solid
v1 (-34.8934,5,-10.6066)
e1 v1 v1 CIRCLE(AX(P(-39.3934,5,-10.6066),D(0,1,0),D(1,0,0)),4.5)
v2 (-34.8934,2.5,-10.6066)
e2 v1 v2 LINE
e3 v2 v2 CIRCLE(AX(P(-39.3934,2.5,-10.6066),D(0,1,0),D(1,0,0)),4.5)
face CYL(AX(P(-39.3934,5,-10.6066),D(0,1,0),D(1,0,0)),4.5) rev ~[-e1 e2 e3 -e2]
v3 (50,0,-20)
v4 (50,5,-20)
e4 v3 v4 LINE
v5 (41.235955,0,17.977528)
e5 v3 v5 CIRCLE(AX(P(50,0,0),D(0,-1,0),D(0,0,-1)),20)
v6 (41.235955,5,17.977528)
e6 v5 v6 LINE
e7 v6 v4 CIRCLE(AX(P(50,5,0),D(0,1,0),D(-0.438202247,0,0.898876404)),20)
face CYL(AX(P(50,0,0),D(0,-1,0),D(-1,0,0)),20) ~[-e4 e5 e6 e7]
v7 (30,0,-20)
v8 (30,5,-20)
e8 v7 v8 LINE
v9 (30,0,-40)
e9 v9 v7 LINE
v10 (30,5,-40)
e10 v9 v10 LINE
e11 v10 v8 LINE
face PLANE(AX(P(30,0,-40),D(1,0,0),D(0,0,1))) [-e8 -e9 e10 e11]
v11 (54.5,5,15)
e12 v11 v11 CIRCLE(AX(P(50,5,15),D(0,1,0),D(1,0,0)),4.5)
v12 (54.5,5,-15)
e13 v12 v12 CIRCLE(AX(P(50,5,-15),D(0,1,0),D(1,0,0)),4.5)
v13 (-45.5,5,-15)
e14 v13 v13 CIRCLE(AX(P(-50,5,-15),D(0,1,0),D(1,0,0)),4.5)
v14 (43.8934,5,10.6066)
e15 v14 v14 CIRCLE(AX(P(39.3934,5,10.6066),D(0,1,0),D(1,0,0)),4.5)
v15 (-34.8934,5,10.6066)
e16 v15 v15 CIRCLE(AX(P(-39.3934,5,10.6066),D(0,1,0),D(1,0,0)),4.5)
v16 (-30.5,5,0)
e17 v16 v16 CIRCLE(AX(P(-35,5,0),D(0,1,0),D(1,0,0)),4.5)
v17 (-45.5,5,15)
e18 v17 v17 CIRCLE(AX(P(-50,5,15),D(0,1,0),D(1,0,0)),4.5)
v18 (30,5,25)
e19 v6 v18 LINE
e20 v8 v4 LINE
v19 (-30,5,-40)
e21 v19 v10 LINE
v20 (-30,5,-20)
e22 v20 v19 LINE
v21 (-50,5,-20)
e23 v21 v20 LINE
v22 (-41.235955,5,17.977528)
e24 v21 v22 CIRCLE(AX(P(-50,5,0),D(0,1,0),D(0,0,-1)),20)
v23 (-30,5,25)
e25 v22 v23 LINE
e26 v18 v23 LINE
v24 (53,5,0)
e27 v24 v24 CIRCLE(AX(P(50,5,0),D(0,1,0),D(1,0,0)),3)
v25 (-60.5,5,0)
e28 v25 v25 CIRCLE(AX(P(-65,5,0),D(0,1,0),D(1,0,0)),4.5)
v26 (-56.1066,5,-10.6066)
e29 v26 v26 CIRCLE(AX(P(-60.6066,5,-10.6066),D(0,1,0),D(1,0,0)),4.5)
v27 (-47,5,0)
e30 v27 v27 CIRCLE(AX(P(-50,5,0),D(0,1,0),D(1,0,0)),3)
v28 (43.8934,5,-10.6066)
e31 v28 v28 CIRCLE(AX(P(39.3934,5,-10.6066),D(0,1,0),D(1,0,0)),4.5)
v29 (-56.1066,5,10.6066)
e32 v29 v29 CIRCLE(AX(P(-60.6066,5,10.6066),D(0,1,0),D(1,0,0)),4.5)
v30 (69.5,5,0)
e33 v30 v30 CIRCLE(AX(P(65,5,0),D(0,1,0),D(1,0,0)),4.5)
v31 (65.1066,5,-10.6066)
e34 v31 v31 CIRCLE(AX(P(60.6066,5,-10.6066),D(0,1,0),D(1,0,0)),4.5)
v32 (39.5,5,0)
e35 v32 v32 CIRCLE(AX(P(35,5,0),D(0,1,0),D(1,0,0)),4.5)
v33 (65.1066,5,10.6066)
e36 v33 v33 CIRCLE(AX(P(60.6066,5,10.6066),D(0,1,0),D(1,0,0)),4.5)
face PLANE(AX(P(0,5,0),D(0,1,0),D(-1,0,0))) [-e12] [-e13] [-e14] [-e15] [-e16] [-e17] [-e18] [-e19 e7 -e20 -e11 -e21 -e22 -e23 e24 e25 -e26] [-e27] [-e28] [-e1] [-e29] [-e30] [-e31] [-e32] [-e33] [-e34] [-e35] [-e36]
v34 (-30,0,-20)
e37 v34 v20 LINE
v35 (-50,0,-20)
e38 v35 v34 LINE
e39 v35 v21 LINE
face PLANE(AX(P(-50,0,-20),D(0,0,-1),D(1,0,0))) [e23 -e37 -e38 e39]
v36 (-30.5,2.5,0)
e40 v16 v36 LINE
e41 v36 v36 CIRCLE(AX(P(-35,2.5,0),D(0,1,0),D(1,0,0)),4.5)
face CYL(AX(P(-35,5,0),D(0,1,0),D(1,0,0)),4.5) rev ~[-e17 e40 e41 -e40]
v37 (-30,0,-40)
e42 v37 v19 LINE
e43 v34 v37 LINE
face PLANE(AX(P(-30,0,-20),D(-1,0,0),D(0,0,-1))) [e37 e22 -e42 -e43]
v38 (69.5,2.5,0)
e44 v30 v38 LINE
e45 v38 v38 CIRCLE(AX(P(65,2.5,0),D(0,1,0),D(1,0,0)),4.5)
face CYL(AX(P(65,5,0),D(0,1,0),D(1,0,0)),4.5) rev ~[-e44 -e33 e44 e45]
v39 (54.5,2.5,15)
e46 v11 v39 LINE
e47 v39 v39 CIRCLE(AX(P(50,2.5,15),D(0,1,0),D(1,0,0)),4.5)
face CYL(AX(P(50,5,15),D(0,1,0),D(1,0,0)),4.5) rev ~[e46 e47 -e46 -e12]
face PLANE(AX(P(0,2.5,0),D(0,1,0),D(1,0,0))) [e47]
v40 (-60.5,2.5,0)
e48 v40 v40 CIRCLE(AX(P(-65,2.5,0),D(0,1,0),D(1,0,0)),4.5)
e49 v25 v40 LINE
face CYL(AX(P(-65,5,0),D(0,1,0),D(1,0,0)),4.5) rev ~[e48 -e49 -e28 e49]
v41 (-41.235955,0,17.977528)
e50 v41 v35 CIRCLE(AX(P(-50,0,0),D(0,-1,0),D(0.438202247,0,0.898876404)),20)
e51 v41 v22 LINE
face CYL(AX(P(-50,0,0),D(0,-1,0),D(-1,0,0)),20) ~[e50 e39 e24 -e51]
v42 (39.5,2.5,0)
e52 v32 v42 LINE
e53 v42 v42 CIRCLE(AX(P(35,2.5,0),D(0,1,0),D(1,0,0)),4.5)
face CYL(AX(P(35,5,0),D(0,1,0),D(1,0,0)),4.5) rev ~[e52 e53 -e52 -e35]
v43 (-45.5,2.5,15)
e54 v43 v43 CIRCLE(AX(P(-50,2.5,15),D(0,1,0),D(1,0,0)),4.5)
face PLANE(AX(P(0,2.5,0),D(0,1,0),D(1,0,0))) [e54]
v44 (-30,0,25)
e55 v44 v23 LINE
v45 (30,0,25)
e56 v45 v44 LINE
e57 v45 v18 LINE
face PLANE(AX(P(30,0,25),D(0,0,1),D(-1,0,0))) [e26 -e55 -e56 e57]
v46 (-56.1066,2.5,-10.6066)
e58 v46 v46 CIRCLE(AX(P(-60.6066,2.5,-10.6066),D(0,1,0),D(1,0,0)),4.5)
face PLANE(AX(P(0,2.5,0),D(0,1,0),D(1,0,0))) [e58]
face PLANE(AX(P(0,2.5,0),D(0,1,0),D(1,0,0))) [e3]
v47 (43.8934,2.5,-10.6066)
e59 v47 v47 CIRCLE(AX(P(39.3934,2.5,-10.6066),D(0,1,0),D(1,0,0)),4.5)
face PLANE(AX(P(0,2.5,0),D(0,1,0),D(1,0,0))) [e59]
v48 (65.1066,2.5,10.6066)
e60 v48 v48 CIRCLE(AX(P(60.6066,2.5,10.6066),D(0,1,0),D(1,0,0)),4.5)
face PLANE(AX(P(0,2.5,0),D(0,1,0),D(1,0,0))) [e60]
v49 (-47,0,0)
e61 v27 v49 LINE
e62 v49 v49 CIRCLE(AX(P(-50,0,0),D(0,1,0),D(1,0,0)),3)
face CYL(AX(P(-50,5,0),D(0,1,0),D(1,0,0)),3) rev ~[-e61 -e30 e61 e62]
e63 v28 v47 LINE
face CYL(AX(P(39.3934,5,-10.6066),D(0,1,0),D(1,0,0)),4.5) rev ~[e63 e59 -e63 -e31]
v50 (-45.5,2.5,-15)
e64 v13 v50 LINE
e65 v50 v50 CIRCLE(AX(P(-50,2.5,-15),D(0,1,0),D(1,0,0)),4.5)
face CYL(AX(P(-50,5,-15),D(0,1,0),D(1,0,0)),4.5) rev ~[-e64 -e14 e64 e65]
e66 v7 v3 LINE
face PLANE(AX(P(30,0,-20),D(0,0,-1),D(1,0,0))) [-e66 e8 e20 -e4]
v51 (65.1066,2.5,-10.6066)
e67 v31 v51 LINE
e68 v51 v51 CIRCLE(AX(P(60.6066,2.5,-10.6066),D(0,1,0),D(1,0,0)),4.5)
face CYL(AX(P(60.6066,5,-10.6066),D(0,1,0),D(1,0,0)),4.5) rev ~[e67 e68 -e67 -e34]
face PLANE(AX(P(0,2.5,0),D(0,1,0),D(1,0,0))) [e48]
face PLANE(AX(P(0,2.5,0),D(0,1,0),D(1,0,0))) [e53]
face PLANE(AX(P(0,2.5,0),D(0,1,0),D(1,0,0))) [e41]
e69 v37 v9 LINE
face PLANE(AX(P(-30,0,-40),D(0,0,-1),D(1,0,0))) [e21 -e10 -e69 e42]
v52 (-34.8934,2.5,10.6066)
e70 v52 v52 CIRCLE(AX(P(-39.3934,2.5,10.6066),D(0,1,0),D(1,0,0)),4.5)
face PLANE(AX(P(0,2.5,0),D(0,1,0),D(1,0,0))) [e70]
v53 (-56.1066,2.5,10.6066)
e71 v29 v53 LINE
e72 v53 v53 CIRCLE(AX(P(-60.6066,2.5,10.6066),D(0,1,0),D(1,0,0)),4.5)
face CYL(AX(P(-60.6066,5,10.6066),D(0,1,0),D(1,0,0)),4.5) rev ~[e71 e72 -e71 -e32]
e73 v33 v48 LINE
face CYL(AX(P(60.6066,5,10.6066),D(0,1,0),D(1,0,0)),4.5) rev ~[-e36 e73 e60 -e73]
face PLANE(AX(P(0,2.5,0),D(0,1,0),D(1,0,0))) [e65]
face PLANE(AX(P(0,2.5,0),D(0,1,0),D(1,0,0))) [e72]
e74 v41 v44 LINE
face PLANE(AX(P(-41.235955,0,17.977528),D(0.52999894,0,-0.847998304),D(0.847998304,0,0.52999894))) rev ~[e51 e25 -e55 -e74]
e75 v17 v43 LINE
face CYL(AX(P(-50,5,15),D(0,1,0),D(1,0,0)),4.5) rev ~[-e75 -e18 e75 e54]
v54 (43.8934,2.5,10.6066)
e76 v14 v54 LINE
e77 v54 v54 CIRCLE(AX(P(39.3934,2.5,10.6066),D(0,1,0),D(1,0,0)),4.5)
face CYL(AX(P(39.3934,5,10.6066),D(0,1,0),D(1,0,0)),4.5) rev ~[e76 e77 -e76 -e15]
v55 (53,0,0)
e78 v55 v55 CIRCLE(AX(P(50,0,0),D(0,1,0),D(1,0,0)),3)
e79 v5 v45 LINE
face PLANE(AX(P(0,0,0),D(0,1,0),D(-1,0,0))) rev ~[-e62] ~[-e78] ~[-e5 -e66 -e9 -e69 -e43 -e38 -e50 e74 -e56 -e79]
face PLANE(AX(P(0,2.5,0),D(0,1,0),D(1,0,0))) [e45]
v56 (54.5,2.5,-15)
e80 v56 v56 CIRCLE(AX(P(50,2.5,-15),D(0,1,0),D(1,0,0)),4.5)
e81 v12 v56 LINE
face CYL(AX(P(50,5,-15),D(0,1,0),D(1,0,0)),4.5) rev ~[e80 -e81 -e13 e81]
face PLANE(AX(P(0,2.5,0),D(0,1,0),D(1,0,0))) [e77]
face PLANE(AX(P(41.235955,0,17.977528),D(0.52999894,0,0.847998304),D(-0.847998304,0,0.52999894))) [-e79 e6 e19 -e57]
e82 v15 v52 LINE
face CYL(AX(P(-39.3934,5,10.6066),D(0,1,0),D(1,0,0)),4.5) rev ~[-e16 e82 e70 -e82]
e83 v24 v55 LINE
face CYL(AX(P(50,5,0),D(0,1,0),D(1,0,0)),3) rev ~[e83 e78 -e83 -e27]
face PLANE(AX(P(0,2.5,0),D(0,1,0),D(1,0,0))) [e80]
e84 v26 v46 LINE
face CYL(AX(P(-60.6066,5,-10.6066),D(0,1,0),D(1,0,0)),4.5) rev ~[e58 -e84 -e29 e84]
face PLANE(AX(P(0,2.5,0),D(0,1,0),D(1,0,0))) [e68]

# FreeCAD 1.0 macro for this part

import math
import FreeCAD as App
import Part
import Sketcher

V = App.Vector

doc = App.newDocument("Part")
body = doc.addObject("PartDesign::Body", "Body")

# Sketch on XZ plane
sketch1 = body.newObject("Sketcher::SketchObject", "Sketch")
sketch1.AttachmentSupport = (doc.getObject("XZ_Plane"), [""])
sketch1.MapMode = "FlatFace"
sketch1.addGeometry([
    Part.LineSegment(V(-30, 25, 0), V(30, 25, 0)),  # 0
    Part.LineSegment(V(30, 25, 0), V(41, 18, 0)),  # 1
    Part.ArcOfCircle(Part.Circle(V(50, 0, 0), V(0, 0, 1), 20), math.radians(-90), math.radians(116)),  # 2
    Part.LineSegment(V(50, -20, 0), V(30, -20, 0)),  # 3
    Part.LineSegment(V(30, -20, 0), V(30, -40, 0)),  # 4
    Part.LineSegment(V(30, -40, 0), V(-30, -40, 0)),  # 5
    Part.LineSegment(V(-30, -40, 0), V(-30, -20, 0)),  # 6
    Part.LineSegment(V(-30, -20, 0), V(-50, -20, 0)),  # 7
    Part.ArcOfCircle(Part.Circle(V(-50, 0, 0), V(0, 0, 1), 20), math.radians(64), math.radians(270)),  # 8
    Part.LineSegment(V(-41, 18, 0), V(-30, 25, 0)),  # 9
], False)
sketch1.addConstraint([
    Sketcher.Constraint("Coincident", 0, 2, 1, 1),
    Sketcher.Constraint("Coincident", 1, 2, 2, 2),
    Sketcher.Constraint("Tangent", 2, 1, 3, 1),
    Sketcher.Constraint("Coincident", 3, 2, 4, 1),
    Sketcher.Constraint("Coincident", 4, 2, 5, 1),
    Sketcher.Constraint("Coincident", 5, 2, 6, 1),
    Sketcher.Constraint("Coincident", 6, 2, 7, 1),
    Sketcher.Constraint("Tangent", 7, 2, 8, 2),
    Sketcher.Constraint("Coincident", 8, 1, 9, 1),
    Sketcher.Constraint("Coincident", 9, 2, 0, 1),
    Sketcher.Constraint("Horizontal", 0),
    Sketcher.Constraint("Horizontal", 3),
    Sketcher.Constraint("Vertical", 4),
    Sketcher.Constraint("Horizontal", 5),
    Sketcher.Constraint("Vertical", 6),
    Sketcher.Constraint("Horizontal", 7),
    Sketcher.Constraint("Equal", 2, 8),
    Sketcher.Constraint("Symmetric", 2, 3, 8, 3, -1, 1),
    Sketcher.Constraint("Symmetric", 3, 2, 6, 2, -2),
    Sketcher.Constraint("Horizontal", 1, 2, 8, 1),
    Sketcher.Constraint("Vertical", 0, 2, 3, 2),
    Sketcher.Constraint("Vertical", 6, 2, 9, 2),
    Sketcher.Constraint("Equal", 7, 4),
    Sketcher.Constraint("Radius", 2, 20.0),
    Sketcher.Constraint("DistanceX", 0, 1, 0, 2, 60.0),
    Sketcher.Constraint("DistanceX", -1, 1, 2, 3, 50.0),
    Sketcher.Constraint("DistanceY", -1, 1, 0, 2, 25.0),
    Sketcher.Constraint("Distance", 1, 13.25),
])
pad1 = body.newObject("PartDesign::Pad", "Pad")
pad1.Profile = sketch1
pad1.Length = 5
pad1.Reversed = True

# Sketch on XZ plane
sketch2 = body.newObject("Sketcher::SketchObject", "Sketch001")
sketch2.AttachmentSupport = (doc.getObject("XZ_Plane"), [""])
sketch2.MapMode = "FlatFace"
sketch2.AttachmentOffset = App.Placement(V(0, 0, -5), App.Rotation())
sketch2.addGeometry([
    Part.Circle(V(-50, 0, 0), V(0, 0, 1), 3),
    Part.Circle(V(50, 0, 0), V(0, 0, 1), 3),
], False)
sketch2.addConstraint([
    Sketcher.Constraint("Equal", 0, 1),
    Sketcher.Constraint("Symmetric", 0, 3, 1, 3, -1, 1),
    Sketcher.Constraint("PointOnObject", 0, 3, -1),
    Sketcher.Constraint("Diameter", 0, 6.0),
    Sketcher.Constraint("DistanceX", 0, 3, -1, 1, 50.0),
])
pocket1 = body.newObject("PartDesign::Pocket", "Pocket")
pocket1.Profile = sketch2
pocket1.Type = "ThroughAll"
pocket1.Reversed = True

# Sketch on XZ plane
sketch3 = body.newObject("Sketcher::SketchObject", "Sketch002")
sketch3.AttachmentSupport = (doc.getObject("XZ_Plane"), [""])
sketch3.MapMode = "FlatFace"
sketch3.AttachmentOffset = App.Placement(V(0, 0, -5), App.Rotation())
sketch3.addGeometry([
    Part.Circle(V(-50, -15, 0), V(0, 0, 1), 4.5),  # 0
    Part.Circle(V(50, -15, 0), V(0, 0, 1), 4.5),  # 1
    Part.Circle(V(-60.6, -10.6, 0), V(0, 0, 1), 4.5),  # 2
    Part.Circle(V(-65, 0, 0), V(0, 0, 1), 4.5),  # 3
    Part.Circle(V(-60.6, 10.6, 0), V(0, 0, 1), 4.5),  # 4
    Part.Circle(V(-50, 15, 0), V(0, 0, 1), 4.5),  # 5
    Part.Circle(V(-39.4, 10.6, 0), V(0, 0, 1), 4.5),  # 6
    Part.Circle(V(-35, 0, 0), V(0, 0, 1), 4.5),  # 7
    Part.Circle(V(-39.4, -10.6, 0), V(0, 0, 1), 4.5),  # 8
    Part.Circle(V(39.4, -10.6, 0), V(0, 0, 1), 4.5),  # 9
    Part.Circle(V(35, 0, 0), V(0, 0, 1), 4.5),  # 10
    Part.Circle(V(39.4, 10.6, 0), V(0, 0, 1), 4.5),  # 11
    Part.Circle(V(50, 15, 0), V(0, 0, 1), 4.5),  # 12
    Part.Circle(V(60.6, 10.6, 0), V(0, 0, 1), 4.5),  # 13
    Part.Circle(V(65, 0, 0), V(0, 0, 1), 4.5),  # 14
    Part.Circle(V(60.6, -10.6, 0), V(0, 0, 1), 4.5),  # 15
], False)
sketch3.addConstraint([
    Sketcher.Constraint("Equal", 0, 1),
    Sketcher.Constraint("Equal", 1, 2),
    Sketcher.Constraint("Equal", 2, 3),
    Sketcher.Constraint("Equal", 3, 4),
    Sketcher.Constraint("Equal", 4, 5),
    Sketcher.Constraint("Equal", 5, 6),
    Sketcher.Constraint("Equal", 6, 7),
    Sketcher.Constraint("Equal", 7, 8),
    Sketcher.Constraint("Equal", 8, 9),
    Sketcher.Constraint("Equal", 9, 10),
    Sketcher.Constraint("Equal", 10, 11),
    Sketcher.Constraint("Equal", 11, 12),
    Sketcher.Constraint("Equal", 12, 13),
    Sketcher.Constraint("Equal", 13, 14),
    Sketcher.Constraint("Equal", 14, 15),
    Sketcher.Constraint("Symmetric", 1, 3, 5, 3, -1, 1),
    Sketcher.Constraint("Symmetric", 6, 3, 9, 3, -1, 1),
    Sketcher.Constraint("Symmetric", 7, 3, 10, 3, -1, 1),
    Sketcher.Constraint("Symmetric", 8, 3, 11, 3, -1, 1),
    Sketcher.Constraint("Symmetric", 0, 3, 12, 3, -1, 1),
    Sketcher.Constraint("Symmetric", 2, 3, 13, 3, -1, 1),
    Sketcher.Constraint("Symmetric", 3, 3, 14, 3, -1, 1),
    Sketcher.Constraint("Symmetric", 4, 3, 15, 3, -1, 1),
    Sketcher.Constraint("Symmetric", 0, 3, 1, 3, -2),
    Sketcher.Constraint("Symmetric", 8, 3, 9, 3, -2),
    Sketcher.Constraint("Symmetric", 4, 3, 13, 3, -2),
    Sketcher.Constraint("PointOnObject", 3, 3, -1),
    Sketcher.Constraint("PointOnObject", 7, 3, -1),
    Sketcher.Constraint("Horizontal", 4, 3, 6, 3),
    Sketcher.Constraint("Diameter", 0, 9.0),
    Sketcher.Constraint("DistanceY", 0, 3, 5, 3, 30.0),
    Sketcher.Constraint("DistanceX", 0, 3, -1, 1, 50.0),
    Sketcher.Constraint("DistanceX", 3, 3, -1, 1, 65.0),
    Sketcher.Constraint("DistanceX", 7, 3, -1, 1, 35.0),
    Sketcher.Constraint("DistanceX", 2, 3, -1, 1, 60.6066),
    Sketcher.Constraint("DistanceY", 2, 3, -1, 1, 10.6066),
    Sketcher.Constraint("DistanceX", 6, 3, -1, 1, 39.3934),
])
pocket2 = body.newObject("PartDesign::Pocket", "Pocket001")
pocket2.Profile = sketch3
pocket2.Length = 2.5
pocket2.Reversed = True

doc.recompute()
